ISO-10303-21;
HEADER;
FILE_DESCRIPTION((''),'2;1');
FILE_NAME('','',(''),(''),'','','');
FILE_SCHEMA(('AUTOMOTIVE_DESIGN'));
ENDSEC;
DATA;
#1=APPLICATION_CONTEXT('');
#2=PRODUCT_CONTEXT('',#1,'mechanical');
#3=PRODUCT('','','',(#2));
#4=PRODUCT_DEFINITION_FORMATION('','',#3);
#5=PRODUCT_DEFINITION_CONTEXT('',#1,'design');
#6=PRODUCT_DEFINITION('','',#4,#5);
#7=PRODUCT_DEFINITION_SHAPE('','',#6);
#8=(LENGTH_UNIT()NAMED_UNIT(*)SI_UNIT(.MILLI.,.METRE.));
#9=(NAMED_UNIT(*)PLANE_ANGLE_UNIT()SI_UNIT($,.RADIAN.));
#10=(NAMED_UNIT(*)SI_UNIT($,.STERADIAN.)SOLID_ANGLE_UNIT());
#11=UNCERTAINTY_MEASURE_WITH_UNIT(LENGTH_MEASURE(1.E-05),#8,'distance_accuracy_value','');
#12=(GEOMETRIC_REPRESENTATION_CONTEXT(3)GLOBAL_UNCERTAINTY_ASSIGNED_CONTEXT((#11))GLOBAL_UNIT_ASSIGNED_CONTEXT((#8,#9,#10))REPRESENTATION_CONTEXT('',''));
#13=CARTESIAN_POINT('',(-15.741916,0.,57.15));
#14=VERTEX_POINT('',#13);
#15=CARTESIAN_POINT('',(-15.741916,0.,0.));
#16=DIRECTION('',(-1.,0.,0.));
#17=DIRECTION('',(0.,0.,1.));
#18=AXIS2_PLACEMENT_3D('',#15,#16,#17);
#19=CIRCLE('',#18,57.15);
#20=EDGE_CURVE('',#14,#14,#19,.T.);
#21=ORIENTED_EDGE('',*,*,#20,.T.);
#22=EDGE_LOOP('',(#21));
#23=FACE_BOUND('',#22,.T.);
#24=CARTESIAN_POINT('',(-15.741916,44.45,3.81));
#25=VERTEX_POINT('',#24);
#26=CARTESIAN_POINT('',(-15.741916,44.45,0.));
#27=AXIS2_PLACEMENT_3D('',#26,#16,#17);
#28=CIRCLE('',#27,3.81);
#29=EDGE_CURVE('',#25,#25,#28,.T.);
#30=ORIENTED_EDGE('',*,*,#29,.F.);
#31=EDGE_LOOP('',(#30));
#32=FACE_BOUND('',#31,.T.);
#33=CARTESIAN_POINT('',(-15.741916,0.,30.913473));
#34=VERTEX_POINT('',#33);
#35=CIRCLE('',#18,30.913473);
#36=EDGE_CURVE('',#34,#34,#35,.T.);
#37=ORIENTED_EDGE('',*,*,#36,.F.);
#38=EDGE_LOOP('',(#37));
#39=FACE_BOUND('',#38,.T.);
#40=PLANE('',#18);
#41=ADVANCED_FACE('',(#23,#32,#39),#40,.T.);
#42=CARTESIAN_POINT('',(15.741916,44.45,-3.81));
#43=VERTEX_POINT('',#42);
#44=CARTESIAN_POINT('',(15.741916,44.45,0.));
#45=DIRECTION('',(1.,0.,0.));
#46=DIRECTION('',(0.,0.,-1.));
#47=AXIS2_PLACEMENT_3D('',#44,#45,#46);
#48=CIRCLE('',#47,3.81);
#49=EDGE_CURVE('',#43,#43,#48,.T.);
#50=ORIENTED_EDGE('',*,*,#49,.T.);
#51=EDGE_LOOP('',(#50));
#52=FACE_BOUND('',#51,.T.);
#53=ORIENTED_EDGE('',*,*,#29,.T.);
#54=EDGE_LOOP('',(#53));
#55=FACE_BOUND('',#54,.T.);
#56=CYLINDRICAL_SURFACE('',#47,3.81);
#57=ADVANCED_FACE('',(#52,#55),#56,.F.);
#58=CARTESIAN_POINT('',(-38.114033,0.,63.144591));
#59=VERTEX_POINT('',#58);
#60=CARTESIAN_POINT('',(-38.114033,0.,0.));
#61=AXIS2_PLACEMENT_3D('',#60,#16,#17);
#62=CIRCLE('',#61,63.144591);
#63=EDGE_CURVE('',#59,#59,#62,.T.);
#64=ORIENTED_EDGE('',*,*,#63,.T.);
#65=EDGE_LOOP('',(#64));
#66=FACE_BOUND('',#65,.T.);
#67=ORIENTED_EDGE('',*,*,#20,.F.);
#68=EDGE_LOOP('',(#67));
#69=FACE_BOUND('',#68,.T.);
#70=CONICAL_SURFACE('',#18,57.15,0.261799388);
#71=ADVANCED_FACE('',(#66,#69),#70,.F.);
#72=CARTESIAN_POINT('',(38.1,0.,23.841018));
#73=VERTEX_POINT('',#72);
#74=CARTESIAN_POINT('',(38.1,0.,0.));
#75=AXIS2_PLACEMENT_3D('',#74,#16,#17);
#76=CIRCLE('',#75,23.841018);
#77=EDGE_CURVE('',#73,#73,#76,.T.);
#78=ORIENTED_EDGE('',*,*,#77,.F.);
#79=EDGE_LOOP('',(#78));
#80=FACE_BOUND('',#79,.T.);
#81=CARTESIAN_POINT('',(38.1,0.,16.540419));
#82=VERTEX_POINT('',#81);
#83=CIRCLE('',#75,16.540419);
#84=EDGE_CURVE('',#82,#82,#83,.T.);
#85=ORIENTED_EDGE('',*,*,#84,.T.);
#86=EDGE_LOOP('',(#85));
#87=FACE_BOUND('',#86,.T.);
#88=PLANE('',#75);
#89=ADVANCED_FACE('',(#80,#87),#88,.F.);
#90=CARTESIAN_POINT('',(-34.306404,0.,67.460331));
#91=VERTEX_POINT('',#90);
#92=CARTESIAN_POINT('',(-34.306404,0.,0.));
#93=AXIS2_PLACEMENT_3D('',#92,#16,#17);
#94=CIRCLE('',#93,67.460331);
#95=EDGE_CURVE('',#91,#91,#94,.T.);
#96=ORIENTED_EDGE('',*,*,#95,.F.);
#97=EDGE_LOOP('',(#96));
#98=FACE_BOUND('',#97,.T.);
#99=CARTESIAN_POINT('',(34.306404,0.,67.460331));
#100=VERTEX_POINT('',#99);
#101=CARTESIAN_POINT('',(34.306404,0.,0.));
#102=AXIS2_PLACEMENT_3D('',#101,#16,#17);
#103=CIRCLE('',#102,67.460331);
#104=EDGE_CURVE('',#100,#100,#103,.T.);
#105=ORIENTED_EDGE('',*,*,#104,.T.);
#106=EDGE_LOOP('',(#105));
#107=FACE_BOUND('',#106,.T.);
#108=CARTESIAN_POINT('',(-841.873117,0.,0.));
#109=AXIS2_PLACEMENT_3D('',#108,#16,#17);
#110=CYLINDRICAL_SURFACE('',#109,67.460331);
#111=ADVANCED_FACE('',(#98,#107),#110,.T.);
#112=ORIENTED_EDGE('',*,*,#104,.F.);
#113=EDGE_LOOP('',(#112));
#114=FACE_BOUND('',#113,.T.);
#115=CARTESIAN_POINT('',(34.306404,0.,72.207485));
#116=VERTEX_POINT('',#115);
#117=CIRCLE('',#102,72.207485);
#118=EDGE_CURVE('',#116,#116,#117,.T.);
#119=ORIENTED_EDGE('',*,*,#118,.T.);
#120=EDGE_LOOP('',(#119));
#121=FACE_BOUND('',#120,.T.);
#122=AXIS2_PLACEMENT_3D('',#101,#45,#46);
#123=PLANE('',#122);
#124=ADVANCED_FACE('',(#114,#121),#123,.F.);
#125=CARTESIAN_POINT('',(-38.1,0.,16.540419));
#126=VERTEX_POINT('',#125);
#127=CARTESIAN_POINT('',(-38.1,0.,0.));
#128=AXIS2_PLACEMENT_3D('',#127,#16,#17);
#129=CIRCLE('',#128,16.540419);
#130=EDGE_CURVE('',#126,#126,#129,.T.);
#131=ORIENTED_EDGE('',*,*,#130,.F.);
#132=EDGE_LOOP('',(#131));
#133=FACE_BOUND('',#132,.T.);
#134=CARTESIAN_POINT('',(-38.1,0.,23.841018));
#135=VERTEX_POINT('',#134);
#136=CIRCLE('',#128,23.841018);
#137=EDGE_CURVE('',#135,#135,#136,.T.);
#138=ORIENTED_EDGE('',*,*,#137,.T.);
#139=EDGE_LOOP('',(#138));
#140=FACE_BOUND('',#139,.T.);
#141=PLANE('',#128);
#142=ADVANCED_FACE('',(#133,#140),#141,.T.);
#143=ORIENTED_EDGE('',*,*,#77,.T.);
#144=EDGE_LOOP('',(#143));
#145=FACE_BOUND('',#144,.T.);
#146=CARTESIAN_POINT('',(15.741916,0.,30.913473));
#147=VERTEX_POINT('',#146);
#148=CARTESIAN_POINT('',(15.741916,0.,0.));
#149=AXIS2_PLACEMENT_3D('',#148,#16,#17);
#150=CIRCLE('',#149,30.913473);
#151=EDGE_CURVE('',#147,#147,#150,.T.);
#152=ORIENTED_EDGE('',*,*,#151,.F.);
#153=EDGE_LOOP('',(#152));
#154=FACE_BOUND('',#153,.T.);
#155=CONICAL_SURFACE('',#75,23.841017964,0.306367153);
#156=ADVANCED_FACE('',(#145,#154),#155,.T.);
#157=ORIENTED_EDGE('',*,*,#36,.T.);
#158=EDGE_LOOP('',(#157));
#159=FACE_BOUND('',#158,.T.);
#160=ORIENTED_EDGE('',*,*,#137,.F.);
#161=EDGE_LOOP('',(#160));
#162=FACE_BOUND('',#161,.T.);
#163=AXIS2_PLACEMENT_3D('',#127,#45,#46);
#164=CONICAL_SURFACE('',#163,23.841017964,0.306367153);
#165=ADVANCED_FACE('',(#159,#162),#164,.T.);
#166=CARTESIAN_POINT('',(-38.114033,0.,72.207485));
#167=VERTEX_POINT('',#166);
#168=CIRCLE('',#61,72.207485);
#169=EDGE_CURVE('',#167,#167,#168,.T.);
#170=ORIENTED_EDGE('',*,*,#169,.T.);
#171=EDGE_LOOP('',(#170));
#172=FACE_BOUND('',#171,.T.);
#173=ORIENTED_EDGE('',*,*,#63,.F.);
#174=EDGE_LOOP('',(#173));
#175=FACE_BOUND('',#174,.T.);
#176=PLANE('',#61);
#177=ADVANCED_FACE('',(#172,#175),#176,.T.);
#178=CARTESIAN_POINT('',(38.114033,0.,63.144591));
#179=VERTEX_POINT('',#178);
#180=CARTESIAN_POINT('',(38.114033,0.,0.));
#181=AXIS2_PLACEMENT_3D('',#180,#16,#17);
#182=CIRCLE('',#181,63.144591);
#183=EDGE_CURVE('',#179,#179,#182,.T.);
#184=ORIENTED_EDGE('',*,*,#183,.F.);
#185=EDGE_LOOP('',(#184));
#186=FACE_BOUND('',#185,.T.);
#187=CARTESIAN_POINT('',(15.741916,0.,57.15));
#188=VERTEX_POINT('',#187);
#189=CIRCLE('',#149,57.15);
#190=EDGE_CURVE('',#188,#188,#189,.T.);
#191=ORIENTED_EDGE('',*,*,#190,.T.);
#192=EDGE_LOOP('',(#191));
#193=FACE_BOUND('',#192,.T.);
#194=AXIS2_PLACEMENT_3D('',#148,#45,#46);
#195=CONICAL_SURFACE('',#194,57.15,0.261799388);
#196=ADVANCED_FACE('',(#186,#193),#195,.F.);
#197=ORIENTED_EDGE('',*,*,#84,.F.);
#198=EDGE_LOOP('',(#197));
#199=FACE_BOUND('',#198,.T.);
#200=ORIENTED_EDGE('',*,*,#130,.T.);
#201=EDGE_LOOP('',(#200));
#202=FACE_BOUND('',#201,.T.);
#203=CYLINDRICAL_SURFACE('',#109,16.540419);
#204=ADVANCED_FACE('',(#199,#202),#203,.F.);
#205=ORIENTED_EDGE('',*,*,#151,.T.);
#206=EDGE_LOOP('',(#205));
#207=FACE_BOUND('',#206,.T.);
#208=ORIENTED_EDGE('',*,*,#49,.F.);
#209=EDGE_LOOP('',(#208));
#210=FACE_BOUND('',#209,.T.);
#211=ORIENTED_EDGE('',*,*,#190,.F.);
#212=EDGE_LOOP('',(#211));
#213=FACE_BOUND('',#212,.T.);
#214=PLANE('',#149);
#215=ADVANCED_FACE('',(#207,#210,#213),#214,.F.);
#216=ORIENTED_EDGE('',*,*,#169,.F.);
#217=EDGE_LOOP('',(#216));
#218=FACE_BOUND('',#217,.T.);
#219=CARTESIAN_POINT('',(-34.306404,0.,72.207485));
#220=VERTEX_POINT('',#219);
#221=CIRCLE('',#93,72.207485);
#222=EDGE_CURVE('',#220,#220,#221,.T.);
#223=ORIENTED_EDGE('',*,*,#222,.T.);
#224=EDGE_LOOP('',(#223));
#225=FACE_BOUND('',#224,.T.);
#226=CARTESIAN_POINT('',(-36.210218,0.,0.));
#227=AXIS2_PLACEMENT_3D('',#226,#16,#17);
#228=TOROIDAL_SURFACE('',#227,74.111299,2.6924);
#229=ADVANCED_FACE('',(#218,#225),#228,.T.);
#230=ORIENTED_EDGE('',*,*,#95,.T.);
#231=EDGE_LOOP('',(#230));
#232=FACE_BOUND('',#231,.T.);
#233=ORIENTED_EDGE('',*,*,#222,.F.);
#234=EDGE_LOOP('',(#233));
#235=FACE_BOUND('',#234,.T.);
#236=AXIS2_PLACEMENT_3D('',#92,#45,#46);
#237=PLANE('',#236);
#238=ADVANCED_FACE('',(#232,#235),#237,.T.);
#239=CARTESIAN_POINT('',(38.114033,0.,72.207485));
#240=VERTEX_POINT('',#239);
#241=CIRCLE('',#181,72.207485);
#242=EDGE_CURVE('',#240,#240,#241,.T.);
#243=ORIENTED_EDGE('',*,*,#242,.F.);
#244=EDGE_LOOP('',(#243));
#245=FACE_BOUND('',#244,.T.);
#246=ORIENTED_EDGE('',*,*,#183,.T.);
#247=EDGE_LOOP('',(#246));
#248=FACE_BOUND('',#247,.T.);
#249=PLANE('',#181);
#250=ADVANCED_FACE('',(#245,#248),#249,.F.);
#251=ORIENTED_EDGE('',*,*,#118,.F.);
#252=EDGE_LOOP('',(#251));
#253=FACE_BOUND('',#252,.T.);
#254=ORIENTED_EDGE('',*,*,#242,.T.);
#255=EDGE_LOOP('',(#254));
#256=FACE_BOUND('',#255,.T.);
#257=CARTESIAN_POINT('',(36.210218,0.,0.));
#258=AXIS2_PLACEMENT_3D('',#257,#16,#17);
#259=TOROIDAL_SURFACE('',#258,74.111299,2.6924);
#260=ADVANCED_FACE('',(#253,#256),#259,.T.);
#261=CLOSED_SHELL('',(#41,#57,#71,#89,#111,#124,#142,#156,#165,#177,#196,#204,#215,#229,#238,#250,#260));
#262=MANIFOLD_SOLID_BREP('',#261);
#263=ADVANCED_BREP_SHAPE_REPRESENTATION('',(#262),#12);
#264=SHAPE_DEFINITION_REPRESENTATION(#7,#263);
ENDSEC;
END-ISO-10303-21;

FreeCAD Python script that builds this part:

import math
import FreeCAD as App
import Part
import Sketcher
Q = App.Units.Quantity

doc = App.newDocument("Part")
body = doc.addObject("PartDesign::Body", "Body")

# Sketch on XY plane
sketch1 = body.newObject("Sketcher::SketchObject", "Sketch")
sketch1.AttachmentSupport = (doc.getObject("XY_Plane"), [""])
sketch1.MapMode = "FlatFace"
sketch1.addGeometry(Part.LineSegment(App.Vector(-34.3, 67.5, 0), App.Vector(-34.3, 72.2, 0)), False)
sketch1.addGeometry(Part.ArcOfCircle(Part.Circle(App.Vector(-36.2, 74.1, 0), App.Vector(0, 0, 1), 2.7), math.radians(-45), math.radians(225)), False)
sketch1.addGeometry(Part.LineSegment(App.Vector(-38.1, 72.2, 0), App.Vector(-38.1, 63.1, 0)), False)
sketch1.addGeometry(Part.LineSegment(App.Vector(-38.1, 63.1, 0), App.Vector(-15.7, 57.1, 0)), False)
sketch1.addGeometry(Part.LineSegment(App.Vector(-15.7, 57.1, 0), App.Vector(-15.7, 30.9, 0)), False)
sketch1.addGeometry(Part.LineSegment(App.Vector(-15.7, 30.9, 0), App.Vector(-38.1, 23.8, 0)), False)
sketch1.addGeometry(Part.LineSegment(App.Vector(-38.1, 23.8, 0), App.Vector(-38.1, 16.5, 0)), False)
sketch1.addGeometry(Part.LineSegment(App.Vector(-38.1, 16.5, 0), App.Vector(38.1, 16.5, 0)), False)
sketch1.addGeometry(Part.LineSegment(App.Vector(38.1, 16.5, 0), App.Vector(38.1, 23.8, 0)), False)
sketch1.addGeometry(Part.LineSegment(App.Vector(38.1, 23.8, 0), App.Vector(15.7, 30.9, 0)), False)
sketch1.addGeometry(Part.LineSegment(App.Vector(15.7, 30.9, 0), App.Vector(15.7, 57.1, 0)), False)
sketch1.addGeometry(Part.LineSegment(App.Vector(15.7, 57.1, 0), App.Vector(38.1, 63.1, 0)), False)
sketch1.addGeometry(Part.LineSegment(App.Vector(38.1, 63.1, 0), App.Vector(38.1, 72.2, 0)), False)
sketch1.addGeometry(Part.ArcOfCircle(Part.Circle(App.Vector(36.2, 74.1, 0), App.Vector(0, 0, 1), 2.7), math.radians(-45), math.radians(225)), False)
sketch1.addGeometry(Part.LineSegment(App.Vector(34.3, 72.2, 0), App.Vector(34.3, 67.5, 0)), False)
sketch1.addGeometry(Part.LineSegment(App.Vector(34.3, 67.5, 0), App.Vector(-34.3, 67.5, 0)), False)
sketch1.addConstraint(Sketcher.Constraint("Coincident", 0, 2, 1, 1))
sketch1.addConstraint(Sketcher.Constraint("Coincident", 1, 2, 2, 1))
sketch1.addConstraint(Sketcher.Constraint("Coincident", 2, 2, 3, 1))
sketch1.addConstraint(Sketcher.Constraint("Coincident", 3, 2, 4, 1))
sketch1.addConstraint(Sketcher.Constraint("Coincident", 4, 2, 5, 1))
sketch1.addConstraint(Sketcher.Constraint("Coincident", 5, 2, 6, 1))
sketch1.addConstraint(Sketcher.Constraint("Coincident", 6, 2, 7, 1))
sketch1.addConstraint(Sketcher.Constraint("Coincident", 7, 2, 8, 1))
sketch1.addConstraint(Sketcher.Constraint("Coincident", 8, 2, 9, 1))
sketch1.addConstraint(Sketcher.Constraint("Coincident", 9, 2, 10, 1))
sketch1.addConstraint(Sketcher.Constraint("Coincident", 10, 2, 11, 1))
sketch1.addConstraint(Sketcher.Constraint("Coincident", 11, 2, 12, 1))
sketch1.addConstraint(Sketcher.Constraint("Coincident", 12, 2, 13, 1))
sketch1.addConstraint(Sketcher.Constraint("Coincident", 13, 2, 14, 1))
sketch1.addConstraint(Sketcher.Constraint("Coincident", 14, 2, 15, 1))
sketch1.addConstraint(Sketcher.Constraint("Coincident", 15, 2, 0, 1))
sketch1.addConstraint(Sketcher.Constraint("Vertical", 0))
sketch1.addConstraint(Sketcher.Constraint("Vertical", 2))
sketch1.addConstraint(Sketcher.Constraint("Vertical", 4))
sketch1.addConstraint(Sketcher.Constraint("Vertical", 6))
sketch1.addConstraint(Sketcher.Constraint("Horizontal", 7))
sketch1.addConstraint(Sketcher.Constraint("Vertical", 8))
sketch1.addConstraint(Sketcher.Constraint("Vertical", 10))
sketch1.addConstraint(Sketcher.Constraint("Vertical", 12))
sketch1.addConstraint(Sketcher.Constraint("Vertical", 14))
sketch1.addConstraint(Sketcher.Constraint("Horizontal", 15))
sketch1.addConstraint(Sketcher.Constraint("Equal", 1, 13))
sketch1.addConstraint(Sketcher.Constraint("Symmetric", 1, 3, 13, 3, -2))
sketch1.addConstraint(Sketcher.Constraint("Symmetric", 5, 2, 8, 2, -2))
sketch1.addConstraint(Sketcher.Constraint("Symmetric", 4, 2, 9, 2, -2))
sketch1.addConstraint(Sketcher.Constraint("Symmetric", 2, 2, 11, 2, -2))
sketch1.addConstraint(Sketcher.Constraint("Horizontal", 0, 2, 1, 2))
sketch1.addConstraint(Sketcher.Constraint("Horizontal", 3, 2, 10, 2))
sketch1.addConstraint(Sketcher.Constraint("Horizontal", 12, 2, 13, 2))
sketch1.addConstraint(Sketcher.Constraint("DistanceX", 7, 1, 7, 2, Q("3 in")))
sketch1.addConstraint(Sketcher.Constraint("Angle", 3, Q("-15 deg")))
sketch1.addConstraint(Sketcher.Constraint("Radius", 1, Q("0.106 in")))
sketch1.addConstraint(Sketcher.Constraint("DistanceY", -1, 1, 3, 2, Q("2.25 in")))
sketch1.addConstraint(Sketcher.Constraint("DistanceY", 6, 2, 6, 1, 7.300599))
sketch1.addConstraint(Sketcher.Constraint("DistanceX", 15, 2, 15, 1, 68.612808))
sketch1.addConstraint(Sketcher.Constraint("DistanceY", -1, 1, 1, 3, 74.111299))
sketch1.addConstraint(Sketcher.Constraint("Distance", 3, 23.161319))
sketch1.addConstraint(Sketcher.Constraint("DistanceY", 0, 1, 0, 2, 4.747154))
sketch1.addConstraint(Sketcher.Constraint("DistanceY", 2, 2, 2, 1, 9.062894))
sketch1.addConstraint(Sketcher.Constraint("DistanceY", 4, 2, 4, 1, 26.236527))
sketch1.addConstraint(Sketcher.Constraint("DistanceY", -1, 1, 6, 2, 16.540419))
revolution = body.newObject("PartDesign::Revolution", "Revolution")
revolution.Profile = sketch1
revolution.ReferenceAxis = (sketch1, ["H_Axis"])
revolution.Angle = 360

# Sketch on YZ plane
sketch2 = body.newObject("Sketcher::SketchObject", "Sketch001")
sketch2.AttachmentSupport = (doc.getObject("YZ_Plane"), [""])
sketch2.MapMode = "FlatFace"
sketch2.AttachmentOffset = App.Placement(App.Vector(0, 0, 15.741916), App.Rotation())
sketch2.addGeometry(Part.Circle(App.Vector(44.5, 0, 0), App.Vector(0, 0, 1), 3.8), False)
sketch2.addConstraint(Sketcher.Constraint("PointOnObject", 0, 3, -1))
sketch2.addConstraint(Sketcher.Constraint("Diameter", 0, Q("0.3 in")))
sketch2.addConstraint(Sketcher.Constraint("DistanceX", -1, 1, 0, 3, Q("1.75 in")))
doc.recompute()
hole = body.newObject("PartDesign::Hole", "Hole")
hole.Profile = sketch2
hole.ThreadType = "None"
hole.Diameter = Q("0.3 in")
hole.DepthType = "ThroughAll"

doc.recompute()
